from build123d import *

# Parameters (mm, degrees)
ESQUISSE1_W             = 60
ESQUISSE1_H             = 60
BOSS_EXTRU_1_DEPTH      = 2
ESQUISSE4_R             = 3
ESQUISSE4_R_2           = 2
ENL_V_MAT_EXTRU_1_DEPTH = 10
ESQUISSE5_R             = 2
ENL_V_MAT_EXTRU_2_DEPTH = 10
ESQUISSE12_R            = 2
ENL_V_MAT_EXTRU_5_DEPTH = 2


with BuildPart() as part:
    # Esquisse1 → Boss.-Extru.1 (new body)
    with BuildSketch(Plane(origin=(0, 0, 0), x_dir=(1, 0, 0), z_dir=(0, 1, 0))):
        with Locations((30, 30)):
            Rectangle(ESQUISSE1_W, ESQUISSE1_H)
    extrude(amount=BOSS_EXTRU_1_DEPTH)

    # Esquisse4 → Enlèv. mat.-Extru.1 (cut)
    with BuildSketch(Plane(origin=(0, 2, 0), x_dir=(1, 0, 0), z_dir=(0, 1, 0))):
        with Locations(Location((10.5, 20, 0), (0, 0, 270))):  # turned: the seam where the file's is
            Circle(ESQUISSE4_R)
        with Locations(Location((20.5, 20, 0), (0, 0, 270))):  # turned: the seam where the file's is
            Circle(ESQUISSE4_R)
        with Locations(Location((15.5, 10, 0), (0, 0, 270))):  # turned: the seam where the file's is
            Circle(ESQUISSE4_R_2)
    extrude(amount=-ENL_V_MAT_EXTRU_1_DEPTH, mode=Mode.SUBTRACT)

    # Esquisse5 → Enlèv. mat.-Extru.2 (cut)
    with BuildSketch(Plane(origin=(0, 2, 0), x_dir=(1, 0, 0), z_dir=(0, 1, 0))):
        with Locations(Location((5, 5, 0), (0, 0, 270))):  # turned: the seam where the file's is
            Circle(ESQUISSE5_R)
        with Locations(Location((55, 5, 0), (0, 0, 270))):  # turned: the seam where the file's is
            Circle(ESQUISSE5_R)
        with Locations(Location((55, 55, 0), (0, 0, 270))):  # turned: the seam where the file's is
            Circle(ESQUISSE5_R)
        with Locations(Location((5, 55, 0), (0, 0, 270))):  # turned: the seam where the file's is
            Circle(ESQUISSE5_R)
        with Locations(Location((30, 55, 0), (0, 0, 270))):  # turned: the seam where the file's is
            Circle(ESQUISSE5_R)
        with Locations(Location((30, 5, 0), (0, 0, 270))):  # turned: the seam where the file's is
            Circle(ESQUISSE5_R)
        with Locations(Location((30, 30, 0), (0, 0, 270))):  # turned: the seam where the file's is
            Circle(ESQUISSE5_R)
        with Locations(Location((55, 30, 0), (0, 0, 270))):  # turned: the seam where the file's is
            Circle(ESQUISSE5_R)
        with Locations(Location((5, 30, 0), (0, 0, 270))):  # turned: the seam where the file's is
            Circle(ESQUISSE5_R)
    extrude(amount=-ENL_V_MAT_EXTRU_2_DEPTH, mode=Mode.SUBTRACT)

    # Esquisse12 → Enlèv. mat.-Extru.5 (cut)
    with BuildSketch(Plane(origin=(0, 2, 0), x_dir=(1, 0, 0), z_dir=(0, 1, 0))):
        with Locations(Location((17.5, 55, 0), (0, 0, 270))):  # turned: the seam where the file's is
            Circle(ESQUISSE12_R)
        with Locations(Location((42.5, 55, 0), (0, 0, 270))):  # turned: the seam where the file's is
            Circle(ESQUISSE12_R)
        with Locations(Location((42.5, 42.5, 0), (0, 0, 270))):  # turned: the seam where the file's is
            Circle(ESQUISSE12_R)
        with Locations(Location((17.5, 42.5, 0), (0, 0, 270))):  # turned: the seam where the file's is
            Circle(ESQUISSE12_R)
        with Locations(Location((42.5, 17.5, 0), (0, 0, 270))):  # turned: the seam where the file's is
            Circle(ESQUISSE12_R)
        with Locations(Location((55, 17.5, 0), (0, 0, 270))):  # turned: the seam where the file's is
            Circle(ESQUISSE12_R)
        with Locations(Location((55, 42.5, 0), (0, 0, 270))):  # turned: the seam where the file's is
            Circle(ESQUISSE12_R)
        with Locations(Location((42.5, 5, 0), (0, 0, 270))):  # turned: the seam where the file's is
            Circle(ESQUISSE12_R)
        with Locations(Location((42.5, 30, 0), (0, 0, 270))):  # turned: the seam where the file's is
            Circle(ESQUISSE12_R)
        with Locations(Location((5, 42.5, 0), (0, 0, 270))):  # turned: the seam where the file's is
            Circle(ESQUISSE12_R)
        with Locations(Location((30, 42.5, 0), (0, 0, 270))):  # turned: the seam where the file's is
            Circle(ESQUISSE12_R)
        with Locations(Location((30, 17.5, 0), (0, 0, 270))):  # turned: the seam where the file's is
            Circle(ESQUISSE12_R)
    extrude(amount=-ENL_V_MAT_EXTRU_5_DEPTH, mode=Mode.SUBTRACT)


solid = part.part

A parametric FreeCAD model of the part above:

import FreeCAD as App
import Part
import Sketcher

V = App.Vector
Q = App.Units.Quantity

doc = App.newDocument("Part")
body = doc.addObject("PartDesign::Body", "Body")

# Sketch on XZ plane
sketch1 = body.newObject("Sketcher::SketchObject", "Sketch")
sketch1.AttachmentSupport = (doc.getObject("XZ_Plane"), [""])
sketch1.MapMode = "FlatFace"
sketch1.addGeometry(Part.LineSegment(V(0, -60, 0), V(0, 0, 0)), False)
sketch1.addGeometry(Part.LineSegment(V(0, 0, 0), V(60, 0, 0)), False)
sketch1.addGeometry(Part.LineSegment(V(60, 0, 0), V(60, -60, 0)), False)
sketch1.addGeometry(Part.LineSegment(V(60, -60, 0), V(0, -60, 0)), False)
sketch1.addConstraint(Sketcher.Constraint("Coincident", 0, 2, 1, 1))
sketch1.addConstraint(Sketcher.Constraint("Coincident", 1, 2, 2, 1))
sketch1.addConstraint(Sketcher.Constraint("Coincident", 2, 2, 3, 1))
sketch1.addConstraint(Sketcher.Constraint("Coincident", 3, 2, 0, 1))
sketch1.addConstraint(Sketcher.Constraint("Vertical", 0))
sketch1.addConstraint(Sketcher.Constraint("Horizontal", 1))
sketch1.addConstraint(Sketcher.Constraint("Vertical", 2))
sketch1.addConstraint(Sketcher.Constraint("Horizontal", 3))
sketch1.addConstraint(Sketcher.Constraint("Coincident", 0, 2, -1, 1))
sketch1.addConstraint(Sketcher.Constraint("Equal", 3, 0))
sketch1.addConstraint(Sketcher.Constraint("DistanceX", 1, 1, 1, 2, Q("60 mm")))
pad1 = body.newObject("PartDesign::Pad", "Pad")
pad1.Profile = sketch1
pad1.Length = 2
pad1.Reversed = True

# Sketch on XZ plane
sketch2 = body.newObject("Sketcher::SketchObject", "Sketch001")
sketch2.AttachmentSupport = (doc.getObject("XZ_Plane"), [""])
sketch2.MapMode = "FlatFace"
sketch2.AttachmentOffset = App.Placement(V(0, 0, -2), App.Rotation())
sketch2.addGeometry(Part.Circle(V(10.5, -20, 0), V(0, 0, 1), 3), False)
sketch2.addGeometry(Part.Circle(V(20.5, -20, 0), V(0, 0, 1), 3), False)
sketch2.addGeometry(Part.Circle(V(15.5, -10, 0), V(0, 0, 1), 2), False)
sketch2.addConstraint(Sketcher.Constraint("Equal", 0, 1))
sketch2.addConstraint(Sketcher.Constraint("Horizontal", 0, 3, 1, 3))
sketch2.addConstraint(Sketcher.Constraint("Diameter", 0, Q("6 mm")))
sketch2.addConstraint(Sketcher.Constraint("Diameter", 2, Q("4 mm")))
sketch2.addConstraint(Sketcher.Constraint("DistanceY", 0, 3, -1, 1, Q("20 mm")))
sketch2.addConstraint(Sketcher.Constraint("DistanceY", 2, 3, -1, 1, Q("10 mm")))
sketch2.addConstraint(Sketcher.Constraint("DistanceX", 0, 3, 1, 3, Q("10 mm")))
sketch2.addConstraint(Sketcher.Constraint("DistanceX", 0, 3, 2, 3, Q("5 mm")))
sketch2.addConstraint(Sketcher.Constraint("DistanceX", -1, 1, 0, 3, Q("10.5 mm")))
pocket1 = body.newObject("PartDesign::Pocket", "Pocket")
pocket1.Profile = sketch2
pocket1.Length = 10
pocket1.Reversed = True

# Sketch on XZ plane
sketch3 = body.newObject("Sketcher::SketchObject", "Sketch002")
sketch3.AttachmentSupport = (doc.getObject("XZ_Plane"), [""])
sketch3.MapMode = "FlatFace"
sketch3.AttachmentOffset = App.Placement(V(0, 0, -2), App.Rotation())
sketch3.addGeometry(Part.Circle(V(5, -5, 0), V(0, 0, 1), 2), False)
sketch3.addGeometry(Part.Circle(V(55, -5, 0), V(0, 0, 1), 2), False)
sketch3.addGeometry(Part.Circle(V(55, -55, 0), V(0, 0, 1), 2), False)
sketch3.addGeometry(Part.Circle(V(5, -55, 0), V(0, 0, 1), 2), False)
sketch3.addGeometry(Part.Circle(V(30, -55, 0), V(0, 0, 1), 2), False)
sketch3.addGeometry(Part.Circle(V(30, -5, 0), V(0, 0, 1), 2), False)
sketch3.addGeometry(Part.Circle(V(30, -30, 0), V(0, 0, 1), 2), False)
sketch3.addGeometry(Part.Circle(V(55, -30, 0), V(0, 0, 1), 2), False)
sketch3.addGeometry(Part.Circle(V(5, -30, 0), V(0, 0, 1), 2), False)
sketch3.addConstraint(Sketcher.Constraint("Equal", 0, 1))
sketch3.addConstraint(Sketcher.Constraint("Equal", 1, 2))
sketch3.addConstraint(Sketcher.Constraint("Equal", 2, 3))
sketch3.addConstraint(Sketcher.Constraint("Equal", 3, 4))
sketch3.addConstraint(Sketcher.Constraint("Equal", 4, 5))
sketch3.addConstraint(Sketcher.Constraint("Equal", 5, 6))
sketch3.addConstraint(Sketcher.Constraint("Equal", 6, 7))
sketch3.addConstraint(Sketcher.Constraint("Equal", 7, 8))
sketch3.addConstraint(Sketcher.Constraint("Horizontal", 0, 3, 1, 3))
sketch3.addConstraint(Sketcher.Constraint("Horizontal", 2, 3, 3, 3))
sketch3.addConstraint(Sketcher.Constraint("Horizontal", 3, 3, 4, 3))
sketch3.addConstraint(Sketcher.Constraint("Horizontal", 1, 3, 5, 3))
sketch3.addConstraint(Sketcher.Constraint("Horizontal", 6, 3, 7, 3))
sketch3.addConstraint(Sketcher.Constraint("Horizontal", 7, 3, 8, 3))
sketch3.addConstraint(Sketcher.Constraint("Vertical", 1, 3, 2, 3))
sketch3.addConstraint(Sketcher.Constraint("Vertical", 0, 3, 3, 3))
sketch3.addConstraint(Sketcher.Constraint("Vertical", 4, 3, 5, 3))
sketch3.addConstraint(Sketcher.Constraint("Vertical", 5, 3, 6, 3))
sketch3.addConstraint(Sketcher.Constraint("Vertical", 2, 3, 7, 3))
sketch3.addConstraint(Sketcher.Constraint("Vertical", 3, 3, 8, 3))
sketch3.addConstraint(Sketcher.Constraint("Diameter", 0, Q("4 mm")))
sketch3.addConstraint(Sketcher.Constraint("DistanceX", -1, 1, 0, 3, Q("5 mm")))
sketch3.addConstraint(Sketcher.Constraint("DistanceY", 0, 3, -1, 1, Q("5 mm")))
sketch3.addConstraint(Sketcher.Constraint("DistanceX", -1, 1, 1, 3, Q("55 mm")))
sketch3.addConstraint(Sketcher.Constraint("DistanceY", 2, 3, -1, 1, Q("55 mm")))
sketch3.addConstraint(Sketcher.Constraint("DistanceX", -1, 1, 4, 3, Q("30 mm")))
sketch3.addConstraint(Sketcher.Constraint("DistanceY", 6, 3, -1, 1, Q("30 mm")))
pocket2 = body.newObject("PartDesign::Pocket", "Pocket001")
pocket2.Profile = sketch3
pocket2.Length = 10
pocket2.Reversed = True

# Sketch on XZ plane
sketch4 = body.newObject("Sketcher::SketchObject", "Sketch003")
sketch4.AttachmentSupport = (doc.getObject("XZ_Plane"), [""])
sketch4.MapMode = "FlatFace"
sketch4.AttachmentOffset = App.Placement(V(0, 0, -2), App.Rotation())
sketch4.addGeometry(Part.Circle(V(17.5, -55, 0), V(0, 0, 1), 2), False)
sketch4.addGeometry(Part.Circle(V(42.5, -55, 0), V(0, 0, 1), 2), False)
sketch4.addGeometry(Part.Circle(V(42.5, -42.5, 0), V(0, 0, 1), 2), False)
sketch4.addGeometry(Part.Circle(V(17.5, -42.5, 0), V(0, 0, 1), 2), False)
sketch4.addGeometry(Part.Circle(V(42.5, -17.5, 0), V(0, 0, 1), 2), False)
sketch4.addGeometry(Part.Circle(V(55, -17.5, 0), V(0, 0, 1), 2), False)
sketch4.addGeometry(Part.Circle(V(55, -42.5, 0), V(0, 0, 1), 2), False)
sketch4.addGeometry(Part.Circle(V(42.5, -5, 0), V(0, 0, 1), 2), False)
sketch4.addGeometry(Part.Circle(V(42.5, -30, 0), V(0, 0, 1), 2), False)
sketch4.addGeometry(Part.Circle(V(5, -42.5, 0), V(0, 0, 1), 2), False)
sketch4.addGeometry(Part.Circle(V(30, -42.5, 0), V(0, 0, 1), 2), False)
sketch4.addGeometry(Part.Circle(V(30, -17.5, 0), V(0, 0, 1), 2), False)
sketch4.addConstraint(Sketcher.Constraint("Equal", 0, 1))
sketch4.addConstraint(Sketcher.Constraint("Equal", 1, 2))
sketch4.addConstraint(Sketcher.Constraint("Equal", 2, 3))
sketch4.addConstraint(Sketcher.Constraint("Equal", 3, 4))
sketch4.addConstraint(Sketcher.Constraint("Equal", 4, 5))
sketch4.addConstraint(Sketcher.Constraint("Equal", 5, 6))
sketch4.addConstraint(Sketcher.Constraint("Equal", 6, 7))
sketch4.addConstraint(Sketcher.Constraint("Equal", 7, 8))
sketch4.addConstraint(Sketcher.Constraint("Equal", 8, 9))
sketch4.addConstraint(Sketcher.Constraint("Equal", 9, 10))
sketch4.addConstraint(Sketcher.Constraint("Equal", 10, 11))
sketch4.addConstraint(Sketcher.Constraint("Horizontal", 0, 3, 1, 3))
sketch4.addConstraint(Sketcher.Constraint("Horizontal", 2, 3, 3, 3))
sketch4.addConstraint(Sketcher.Constraint("Horizontal", 4, 3, 5, 3))
sketch4.addConstraint(Sketcher.Constraint("Horizontal", 3, 3, 6, 3))
sketch4.addConstraint(Sketcher.Constraint("Horizontal", 6, 3, 9, 3))
sketch4.addConstraint(Sketcher.Constraint("Horizontal", 9, 3, 10, 3))
sketch4.addConstraint(Sketcher.Constraint("Horizontal", 5, 3, 11, 3))
sketch4.addConstraint(Sketcher.Constraint("Vertical", 1, 3, 2, 3))
sketch4.addConstraint(Sketcher.Constraint("Vertical", 0, 3, 3, 3))
sketch4.addConstraint(Sketcher.Constraint("Vertical", 2, 3, 4, 3))
sketch4.addConstraint(Sketcher.Constraint("Vertical", 5, 3, 6, 3))
sketch4.addConstraint(Sketcher.Constraint("Vertical", 4, 3, 7, 3))
sketch4.addConstraint(Sketcher.Constraint("Vertical", 7, 3, 8, 3))
sketch4.addConstraint(Sketcher.Constraint("Vertical", 10, 3, 11, 3))
sketch4.addConstraint(Sketcher.Constraint("Diameter", 0, Q("4 mm")))
sketch4.addConstraint(Sketcher.Constraint("DistanceY", 0, 3, -1, 1, Q("55 mm")))
sketch4.addConstraint(Sketcher.Constraint("DistanceX", -1, 1, 5, 3, Q("55 mm")))
sketch4.addConstraint(Sketcher.Constraint("DistanceY", 7, 3, -1, 1, Q("5 mm")))
sketch4.addConstraint(Sketcher.Constraint("DistanceY", 8, 3, -1, 1, Q("30 mm")))
sketch4.addConstraint(Sketcher.Constraint("DistanceX", -1, 1, 9, 3, Q("5 mm")))
sketch4.addConstraint(Sketcher.Constraint("DistanceX", -1, 1, 10, 3, Q("30 mm")))
sketch4.addConstraint(Sketcher.Constraint("DistanceX", 0, 3, 1, 3, Q("25 mm")))
sketch4.addConstraint(Sketcher.Constraint("DistanceY", 2, 3, 4, 3, Q("25 mm")))
sketch4.addConstraint(Sketcher.Constraint("DistanceX", -1, 1, 0, 3, Q("17.5 mm")))
sketch4.addConstraint(Sketcher.Constraint("DistanceY", 2, 3, -1, 1, Q("42.5 mm")))
pocket3 = body.newObject("PartDesign::Pocket", "Pocket002")
pocket3.Profile = sketch4
pocket3.Length = 2
pocket3.Reversed = True

doc.recompute()
